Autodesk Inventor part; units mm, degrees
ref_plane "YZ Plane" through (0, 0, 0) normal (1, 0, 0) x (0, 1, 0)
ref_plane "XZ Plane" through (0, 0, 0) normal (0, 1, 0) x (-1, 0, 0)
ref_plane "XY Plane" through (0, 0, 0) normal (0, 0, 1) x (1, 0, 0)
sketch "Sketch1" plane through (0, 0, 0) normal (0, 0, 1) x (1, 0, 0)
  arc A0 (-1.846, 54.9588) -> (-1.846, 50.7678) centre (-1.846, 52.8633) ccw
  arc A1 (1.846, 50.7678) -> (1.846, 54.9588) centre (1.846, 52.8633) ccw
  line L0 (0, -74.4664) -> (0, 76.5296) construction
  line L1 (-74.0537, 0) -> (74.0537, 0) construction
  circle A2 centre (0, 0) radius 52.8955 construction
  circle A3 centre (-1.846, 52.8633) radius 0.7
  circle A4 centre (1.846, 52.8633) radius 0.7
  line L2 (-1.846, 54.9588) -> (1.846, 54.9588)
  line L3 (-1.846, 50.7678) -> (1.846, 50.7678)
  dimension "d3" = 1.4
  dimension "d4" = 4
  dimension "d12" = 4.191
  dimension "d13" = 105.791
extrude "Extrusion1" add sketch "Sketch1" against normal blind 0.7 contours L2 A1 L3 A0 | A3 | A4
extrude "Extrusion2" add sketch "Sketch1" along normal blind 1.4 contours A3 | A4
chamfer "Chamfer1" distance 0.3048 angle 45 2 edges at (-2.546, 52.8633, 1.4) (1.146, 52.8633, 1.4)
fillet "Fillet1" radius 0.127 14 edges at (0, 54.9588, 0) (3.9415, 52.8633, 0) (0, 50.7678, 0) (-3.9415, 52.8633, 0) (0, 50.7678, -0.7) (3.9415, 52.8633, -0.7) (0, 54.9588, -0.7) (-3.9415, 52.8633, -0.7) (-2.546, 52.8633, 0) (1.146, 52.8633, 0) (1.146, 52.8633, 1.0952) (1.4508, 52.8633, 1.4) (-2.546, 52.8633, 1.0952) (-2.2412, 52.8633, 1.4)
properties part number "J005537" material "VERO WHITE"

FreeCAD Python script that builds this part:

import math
import FreeCAD as App
import Part
import Sketcher
from FreeCAD import Vector
Q = App.Units.Quantity


def edges_at(feature, points):
    """Names of the edges that pass closest to the given points."""
    edges = feature.Shape.Edges
    near = lambda p: min(range(len(edges)), key=lambda i: edges[i].distToShape(Part.Vertex(*p))[0])
    return sorted({f"Edge{near(p) + 1}" for p in points})

doc = App.newDocument("Part")
body = doc.addObject("PartDesign::Body", "Body")

# Sketch on XY plane
sketch1 = doc.addObject("Sketcher::SketchObject", "Sketch")
body.addObject(sketch1)
sketch1.AttachmentSupport = (doc.XY_Plane, [""])
sketch1.MapMode = "FlatFace"
sketch1.addGeometry(Part.LineSegment(Vector(1.846, 54.9588, 0), Vector(-1.846, 54.9588, 0)), False)
sketch1.addGeometry(Part.ArcOfCircle(Part.Circle(Vector(-1.846, 52.8633, 0), Vector(0, 0, 1), 2.0955), math.radians(90), math.radians(270)), False)
sketch1.addGeometry(Part.LineSegment(Vector(-1.846, 50.7678, 0), Vector(1.846, 50.7678, 0)), False)
sketch1.addGeometry(Part.ArcOfCircle(Part.Circle(Vector(1.846, 52.8633, 0), Vector(0, 0, 1), 2.0955), math.radians(-90), math.radians(90)), False)
sketch1.addConstraint(Sketcher.Constraint("Tangent", 0, 2, 1, 1))
sketch1.addConstraint(Sketcher.Constraint("Tangent", 1, 2, 2, 1))
sketch1.addConstraint(Sketcher.Constraint("Tangent", 2, 2, 3, 1))
sketch1.addConstraint(Sketcher.Constraint("Tangent", 3, 2, 0, 1))
sketch1.addConstraint(Sketcher.Constraint("Horizontal", 0))
sketch1.addConstraint(Sketcher.Constraint("Horizontal", 2))
sketch1.addConstraint(Sketcher.Constraint("Radius", 1, Q("0.0825 in")))
sketch1.addConstraint(Sketcher.Constraint("DistanceX", 0, 2, 0, 1, 3.692))
sketch1.addConstraint(Sketcher.Constraint("DistanceX", 1, 3, -1, 1, 1.846))
sketch1.addConstraint(Sketcher.Constraint("DistanceY", -1, 1, 1, 3, 52.8633))
pad1 = doc.addObject("PartDesign::Pad", "Pad")
body.addObject(pad1)
pad1.Profile = sketch1
pad1.Length = 0.7
pad1.Reversed = True

# Sketch on XY plane
sketch2 = doc.addObject("Sketcher::SketchObject", "Sketch001")
body.addObject(sketch2)
sketch2.AttachmentSupport = (doc.XY_Plane, [""])
sketch2.MapMode = "FlatFace"
sketch2.addGeometry(Part.Circle(Vector(-1.846, 52.8633, 0), Vector(0, 0, 1), 0.7), False)
sketch2.addGeometry(Part.Circle(Vector(1.846, 52.8633, 0), Vector(0, 0, 1), 0.7), False)
sketch2.addConstraint(Sketcher.Constraint("Equal", 0, 1))
sketch2.addConstraint(Sketcher.Constraint("Symmetric", 0, 3, 1, 3, -2))
sketch2.addConstraint(Sketcher.Constraint("Diameter", 0, 1.4))
sketch2.addConstraint(Sketcher.Constraint("DistanceX", 0, 3, -1, 1, 1.846))
sketch2.addConstraint(Sketcher.Constraint("DistanceY", -1, 1, 0, 3, 52.8633))
pad2 = doc.addObject("PartDesign::Pad", "Pad001")
body.addObject(pad2)
pad2.Profile = sketch2
pad2.Length = 1.4
doc.recompute()

chamfer = doc.addObject("PartDesign::Chamfer", "Chamfer")
body.addObject(chamfer)
chamfer.Base = (pad2, edges_at(pad2, [(-2.546, 52.863, 1.4), (1.146, 52.863, 1.4)]))
chamfer.Size = Q("0.012 in")
doc.recompute()

fillet = doc.addObject("PartDesign::Fillet", "Fillet")
body.addObject(fillet)
fillet.Base = (chamfer, edges_at(chamfer, [
    (0, 54.959, 0),
    (3.942, 52.863, 0),
    (0, 50.768, 0),
    (-3.942, 52.863, 0),
    (0, 50.768, -0.7),
    (3.942, 52.863, -0.7),
    (0, 54.959, -0.7),
    (-3.942, 52.863, -0.7),
    (-2.546, 52.863, 0),
    (1.146, 52.863, 0),
    (1.146, 52.863, 1.095),
    (1.451, 52.863, 1.4),
    (-2.546, 52.863, 1.095),
    (-2.241, 52.863, 1.4),
]))
fillet.Radius = Q("0.005 in")

doc.recompute()
